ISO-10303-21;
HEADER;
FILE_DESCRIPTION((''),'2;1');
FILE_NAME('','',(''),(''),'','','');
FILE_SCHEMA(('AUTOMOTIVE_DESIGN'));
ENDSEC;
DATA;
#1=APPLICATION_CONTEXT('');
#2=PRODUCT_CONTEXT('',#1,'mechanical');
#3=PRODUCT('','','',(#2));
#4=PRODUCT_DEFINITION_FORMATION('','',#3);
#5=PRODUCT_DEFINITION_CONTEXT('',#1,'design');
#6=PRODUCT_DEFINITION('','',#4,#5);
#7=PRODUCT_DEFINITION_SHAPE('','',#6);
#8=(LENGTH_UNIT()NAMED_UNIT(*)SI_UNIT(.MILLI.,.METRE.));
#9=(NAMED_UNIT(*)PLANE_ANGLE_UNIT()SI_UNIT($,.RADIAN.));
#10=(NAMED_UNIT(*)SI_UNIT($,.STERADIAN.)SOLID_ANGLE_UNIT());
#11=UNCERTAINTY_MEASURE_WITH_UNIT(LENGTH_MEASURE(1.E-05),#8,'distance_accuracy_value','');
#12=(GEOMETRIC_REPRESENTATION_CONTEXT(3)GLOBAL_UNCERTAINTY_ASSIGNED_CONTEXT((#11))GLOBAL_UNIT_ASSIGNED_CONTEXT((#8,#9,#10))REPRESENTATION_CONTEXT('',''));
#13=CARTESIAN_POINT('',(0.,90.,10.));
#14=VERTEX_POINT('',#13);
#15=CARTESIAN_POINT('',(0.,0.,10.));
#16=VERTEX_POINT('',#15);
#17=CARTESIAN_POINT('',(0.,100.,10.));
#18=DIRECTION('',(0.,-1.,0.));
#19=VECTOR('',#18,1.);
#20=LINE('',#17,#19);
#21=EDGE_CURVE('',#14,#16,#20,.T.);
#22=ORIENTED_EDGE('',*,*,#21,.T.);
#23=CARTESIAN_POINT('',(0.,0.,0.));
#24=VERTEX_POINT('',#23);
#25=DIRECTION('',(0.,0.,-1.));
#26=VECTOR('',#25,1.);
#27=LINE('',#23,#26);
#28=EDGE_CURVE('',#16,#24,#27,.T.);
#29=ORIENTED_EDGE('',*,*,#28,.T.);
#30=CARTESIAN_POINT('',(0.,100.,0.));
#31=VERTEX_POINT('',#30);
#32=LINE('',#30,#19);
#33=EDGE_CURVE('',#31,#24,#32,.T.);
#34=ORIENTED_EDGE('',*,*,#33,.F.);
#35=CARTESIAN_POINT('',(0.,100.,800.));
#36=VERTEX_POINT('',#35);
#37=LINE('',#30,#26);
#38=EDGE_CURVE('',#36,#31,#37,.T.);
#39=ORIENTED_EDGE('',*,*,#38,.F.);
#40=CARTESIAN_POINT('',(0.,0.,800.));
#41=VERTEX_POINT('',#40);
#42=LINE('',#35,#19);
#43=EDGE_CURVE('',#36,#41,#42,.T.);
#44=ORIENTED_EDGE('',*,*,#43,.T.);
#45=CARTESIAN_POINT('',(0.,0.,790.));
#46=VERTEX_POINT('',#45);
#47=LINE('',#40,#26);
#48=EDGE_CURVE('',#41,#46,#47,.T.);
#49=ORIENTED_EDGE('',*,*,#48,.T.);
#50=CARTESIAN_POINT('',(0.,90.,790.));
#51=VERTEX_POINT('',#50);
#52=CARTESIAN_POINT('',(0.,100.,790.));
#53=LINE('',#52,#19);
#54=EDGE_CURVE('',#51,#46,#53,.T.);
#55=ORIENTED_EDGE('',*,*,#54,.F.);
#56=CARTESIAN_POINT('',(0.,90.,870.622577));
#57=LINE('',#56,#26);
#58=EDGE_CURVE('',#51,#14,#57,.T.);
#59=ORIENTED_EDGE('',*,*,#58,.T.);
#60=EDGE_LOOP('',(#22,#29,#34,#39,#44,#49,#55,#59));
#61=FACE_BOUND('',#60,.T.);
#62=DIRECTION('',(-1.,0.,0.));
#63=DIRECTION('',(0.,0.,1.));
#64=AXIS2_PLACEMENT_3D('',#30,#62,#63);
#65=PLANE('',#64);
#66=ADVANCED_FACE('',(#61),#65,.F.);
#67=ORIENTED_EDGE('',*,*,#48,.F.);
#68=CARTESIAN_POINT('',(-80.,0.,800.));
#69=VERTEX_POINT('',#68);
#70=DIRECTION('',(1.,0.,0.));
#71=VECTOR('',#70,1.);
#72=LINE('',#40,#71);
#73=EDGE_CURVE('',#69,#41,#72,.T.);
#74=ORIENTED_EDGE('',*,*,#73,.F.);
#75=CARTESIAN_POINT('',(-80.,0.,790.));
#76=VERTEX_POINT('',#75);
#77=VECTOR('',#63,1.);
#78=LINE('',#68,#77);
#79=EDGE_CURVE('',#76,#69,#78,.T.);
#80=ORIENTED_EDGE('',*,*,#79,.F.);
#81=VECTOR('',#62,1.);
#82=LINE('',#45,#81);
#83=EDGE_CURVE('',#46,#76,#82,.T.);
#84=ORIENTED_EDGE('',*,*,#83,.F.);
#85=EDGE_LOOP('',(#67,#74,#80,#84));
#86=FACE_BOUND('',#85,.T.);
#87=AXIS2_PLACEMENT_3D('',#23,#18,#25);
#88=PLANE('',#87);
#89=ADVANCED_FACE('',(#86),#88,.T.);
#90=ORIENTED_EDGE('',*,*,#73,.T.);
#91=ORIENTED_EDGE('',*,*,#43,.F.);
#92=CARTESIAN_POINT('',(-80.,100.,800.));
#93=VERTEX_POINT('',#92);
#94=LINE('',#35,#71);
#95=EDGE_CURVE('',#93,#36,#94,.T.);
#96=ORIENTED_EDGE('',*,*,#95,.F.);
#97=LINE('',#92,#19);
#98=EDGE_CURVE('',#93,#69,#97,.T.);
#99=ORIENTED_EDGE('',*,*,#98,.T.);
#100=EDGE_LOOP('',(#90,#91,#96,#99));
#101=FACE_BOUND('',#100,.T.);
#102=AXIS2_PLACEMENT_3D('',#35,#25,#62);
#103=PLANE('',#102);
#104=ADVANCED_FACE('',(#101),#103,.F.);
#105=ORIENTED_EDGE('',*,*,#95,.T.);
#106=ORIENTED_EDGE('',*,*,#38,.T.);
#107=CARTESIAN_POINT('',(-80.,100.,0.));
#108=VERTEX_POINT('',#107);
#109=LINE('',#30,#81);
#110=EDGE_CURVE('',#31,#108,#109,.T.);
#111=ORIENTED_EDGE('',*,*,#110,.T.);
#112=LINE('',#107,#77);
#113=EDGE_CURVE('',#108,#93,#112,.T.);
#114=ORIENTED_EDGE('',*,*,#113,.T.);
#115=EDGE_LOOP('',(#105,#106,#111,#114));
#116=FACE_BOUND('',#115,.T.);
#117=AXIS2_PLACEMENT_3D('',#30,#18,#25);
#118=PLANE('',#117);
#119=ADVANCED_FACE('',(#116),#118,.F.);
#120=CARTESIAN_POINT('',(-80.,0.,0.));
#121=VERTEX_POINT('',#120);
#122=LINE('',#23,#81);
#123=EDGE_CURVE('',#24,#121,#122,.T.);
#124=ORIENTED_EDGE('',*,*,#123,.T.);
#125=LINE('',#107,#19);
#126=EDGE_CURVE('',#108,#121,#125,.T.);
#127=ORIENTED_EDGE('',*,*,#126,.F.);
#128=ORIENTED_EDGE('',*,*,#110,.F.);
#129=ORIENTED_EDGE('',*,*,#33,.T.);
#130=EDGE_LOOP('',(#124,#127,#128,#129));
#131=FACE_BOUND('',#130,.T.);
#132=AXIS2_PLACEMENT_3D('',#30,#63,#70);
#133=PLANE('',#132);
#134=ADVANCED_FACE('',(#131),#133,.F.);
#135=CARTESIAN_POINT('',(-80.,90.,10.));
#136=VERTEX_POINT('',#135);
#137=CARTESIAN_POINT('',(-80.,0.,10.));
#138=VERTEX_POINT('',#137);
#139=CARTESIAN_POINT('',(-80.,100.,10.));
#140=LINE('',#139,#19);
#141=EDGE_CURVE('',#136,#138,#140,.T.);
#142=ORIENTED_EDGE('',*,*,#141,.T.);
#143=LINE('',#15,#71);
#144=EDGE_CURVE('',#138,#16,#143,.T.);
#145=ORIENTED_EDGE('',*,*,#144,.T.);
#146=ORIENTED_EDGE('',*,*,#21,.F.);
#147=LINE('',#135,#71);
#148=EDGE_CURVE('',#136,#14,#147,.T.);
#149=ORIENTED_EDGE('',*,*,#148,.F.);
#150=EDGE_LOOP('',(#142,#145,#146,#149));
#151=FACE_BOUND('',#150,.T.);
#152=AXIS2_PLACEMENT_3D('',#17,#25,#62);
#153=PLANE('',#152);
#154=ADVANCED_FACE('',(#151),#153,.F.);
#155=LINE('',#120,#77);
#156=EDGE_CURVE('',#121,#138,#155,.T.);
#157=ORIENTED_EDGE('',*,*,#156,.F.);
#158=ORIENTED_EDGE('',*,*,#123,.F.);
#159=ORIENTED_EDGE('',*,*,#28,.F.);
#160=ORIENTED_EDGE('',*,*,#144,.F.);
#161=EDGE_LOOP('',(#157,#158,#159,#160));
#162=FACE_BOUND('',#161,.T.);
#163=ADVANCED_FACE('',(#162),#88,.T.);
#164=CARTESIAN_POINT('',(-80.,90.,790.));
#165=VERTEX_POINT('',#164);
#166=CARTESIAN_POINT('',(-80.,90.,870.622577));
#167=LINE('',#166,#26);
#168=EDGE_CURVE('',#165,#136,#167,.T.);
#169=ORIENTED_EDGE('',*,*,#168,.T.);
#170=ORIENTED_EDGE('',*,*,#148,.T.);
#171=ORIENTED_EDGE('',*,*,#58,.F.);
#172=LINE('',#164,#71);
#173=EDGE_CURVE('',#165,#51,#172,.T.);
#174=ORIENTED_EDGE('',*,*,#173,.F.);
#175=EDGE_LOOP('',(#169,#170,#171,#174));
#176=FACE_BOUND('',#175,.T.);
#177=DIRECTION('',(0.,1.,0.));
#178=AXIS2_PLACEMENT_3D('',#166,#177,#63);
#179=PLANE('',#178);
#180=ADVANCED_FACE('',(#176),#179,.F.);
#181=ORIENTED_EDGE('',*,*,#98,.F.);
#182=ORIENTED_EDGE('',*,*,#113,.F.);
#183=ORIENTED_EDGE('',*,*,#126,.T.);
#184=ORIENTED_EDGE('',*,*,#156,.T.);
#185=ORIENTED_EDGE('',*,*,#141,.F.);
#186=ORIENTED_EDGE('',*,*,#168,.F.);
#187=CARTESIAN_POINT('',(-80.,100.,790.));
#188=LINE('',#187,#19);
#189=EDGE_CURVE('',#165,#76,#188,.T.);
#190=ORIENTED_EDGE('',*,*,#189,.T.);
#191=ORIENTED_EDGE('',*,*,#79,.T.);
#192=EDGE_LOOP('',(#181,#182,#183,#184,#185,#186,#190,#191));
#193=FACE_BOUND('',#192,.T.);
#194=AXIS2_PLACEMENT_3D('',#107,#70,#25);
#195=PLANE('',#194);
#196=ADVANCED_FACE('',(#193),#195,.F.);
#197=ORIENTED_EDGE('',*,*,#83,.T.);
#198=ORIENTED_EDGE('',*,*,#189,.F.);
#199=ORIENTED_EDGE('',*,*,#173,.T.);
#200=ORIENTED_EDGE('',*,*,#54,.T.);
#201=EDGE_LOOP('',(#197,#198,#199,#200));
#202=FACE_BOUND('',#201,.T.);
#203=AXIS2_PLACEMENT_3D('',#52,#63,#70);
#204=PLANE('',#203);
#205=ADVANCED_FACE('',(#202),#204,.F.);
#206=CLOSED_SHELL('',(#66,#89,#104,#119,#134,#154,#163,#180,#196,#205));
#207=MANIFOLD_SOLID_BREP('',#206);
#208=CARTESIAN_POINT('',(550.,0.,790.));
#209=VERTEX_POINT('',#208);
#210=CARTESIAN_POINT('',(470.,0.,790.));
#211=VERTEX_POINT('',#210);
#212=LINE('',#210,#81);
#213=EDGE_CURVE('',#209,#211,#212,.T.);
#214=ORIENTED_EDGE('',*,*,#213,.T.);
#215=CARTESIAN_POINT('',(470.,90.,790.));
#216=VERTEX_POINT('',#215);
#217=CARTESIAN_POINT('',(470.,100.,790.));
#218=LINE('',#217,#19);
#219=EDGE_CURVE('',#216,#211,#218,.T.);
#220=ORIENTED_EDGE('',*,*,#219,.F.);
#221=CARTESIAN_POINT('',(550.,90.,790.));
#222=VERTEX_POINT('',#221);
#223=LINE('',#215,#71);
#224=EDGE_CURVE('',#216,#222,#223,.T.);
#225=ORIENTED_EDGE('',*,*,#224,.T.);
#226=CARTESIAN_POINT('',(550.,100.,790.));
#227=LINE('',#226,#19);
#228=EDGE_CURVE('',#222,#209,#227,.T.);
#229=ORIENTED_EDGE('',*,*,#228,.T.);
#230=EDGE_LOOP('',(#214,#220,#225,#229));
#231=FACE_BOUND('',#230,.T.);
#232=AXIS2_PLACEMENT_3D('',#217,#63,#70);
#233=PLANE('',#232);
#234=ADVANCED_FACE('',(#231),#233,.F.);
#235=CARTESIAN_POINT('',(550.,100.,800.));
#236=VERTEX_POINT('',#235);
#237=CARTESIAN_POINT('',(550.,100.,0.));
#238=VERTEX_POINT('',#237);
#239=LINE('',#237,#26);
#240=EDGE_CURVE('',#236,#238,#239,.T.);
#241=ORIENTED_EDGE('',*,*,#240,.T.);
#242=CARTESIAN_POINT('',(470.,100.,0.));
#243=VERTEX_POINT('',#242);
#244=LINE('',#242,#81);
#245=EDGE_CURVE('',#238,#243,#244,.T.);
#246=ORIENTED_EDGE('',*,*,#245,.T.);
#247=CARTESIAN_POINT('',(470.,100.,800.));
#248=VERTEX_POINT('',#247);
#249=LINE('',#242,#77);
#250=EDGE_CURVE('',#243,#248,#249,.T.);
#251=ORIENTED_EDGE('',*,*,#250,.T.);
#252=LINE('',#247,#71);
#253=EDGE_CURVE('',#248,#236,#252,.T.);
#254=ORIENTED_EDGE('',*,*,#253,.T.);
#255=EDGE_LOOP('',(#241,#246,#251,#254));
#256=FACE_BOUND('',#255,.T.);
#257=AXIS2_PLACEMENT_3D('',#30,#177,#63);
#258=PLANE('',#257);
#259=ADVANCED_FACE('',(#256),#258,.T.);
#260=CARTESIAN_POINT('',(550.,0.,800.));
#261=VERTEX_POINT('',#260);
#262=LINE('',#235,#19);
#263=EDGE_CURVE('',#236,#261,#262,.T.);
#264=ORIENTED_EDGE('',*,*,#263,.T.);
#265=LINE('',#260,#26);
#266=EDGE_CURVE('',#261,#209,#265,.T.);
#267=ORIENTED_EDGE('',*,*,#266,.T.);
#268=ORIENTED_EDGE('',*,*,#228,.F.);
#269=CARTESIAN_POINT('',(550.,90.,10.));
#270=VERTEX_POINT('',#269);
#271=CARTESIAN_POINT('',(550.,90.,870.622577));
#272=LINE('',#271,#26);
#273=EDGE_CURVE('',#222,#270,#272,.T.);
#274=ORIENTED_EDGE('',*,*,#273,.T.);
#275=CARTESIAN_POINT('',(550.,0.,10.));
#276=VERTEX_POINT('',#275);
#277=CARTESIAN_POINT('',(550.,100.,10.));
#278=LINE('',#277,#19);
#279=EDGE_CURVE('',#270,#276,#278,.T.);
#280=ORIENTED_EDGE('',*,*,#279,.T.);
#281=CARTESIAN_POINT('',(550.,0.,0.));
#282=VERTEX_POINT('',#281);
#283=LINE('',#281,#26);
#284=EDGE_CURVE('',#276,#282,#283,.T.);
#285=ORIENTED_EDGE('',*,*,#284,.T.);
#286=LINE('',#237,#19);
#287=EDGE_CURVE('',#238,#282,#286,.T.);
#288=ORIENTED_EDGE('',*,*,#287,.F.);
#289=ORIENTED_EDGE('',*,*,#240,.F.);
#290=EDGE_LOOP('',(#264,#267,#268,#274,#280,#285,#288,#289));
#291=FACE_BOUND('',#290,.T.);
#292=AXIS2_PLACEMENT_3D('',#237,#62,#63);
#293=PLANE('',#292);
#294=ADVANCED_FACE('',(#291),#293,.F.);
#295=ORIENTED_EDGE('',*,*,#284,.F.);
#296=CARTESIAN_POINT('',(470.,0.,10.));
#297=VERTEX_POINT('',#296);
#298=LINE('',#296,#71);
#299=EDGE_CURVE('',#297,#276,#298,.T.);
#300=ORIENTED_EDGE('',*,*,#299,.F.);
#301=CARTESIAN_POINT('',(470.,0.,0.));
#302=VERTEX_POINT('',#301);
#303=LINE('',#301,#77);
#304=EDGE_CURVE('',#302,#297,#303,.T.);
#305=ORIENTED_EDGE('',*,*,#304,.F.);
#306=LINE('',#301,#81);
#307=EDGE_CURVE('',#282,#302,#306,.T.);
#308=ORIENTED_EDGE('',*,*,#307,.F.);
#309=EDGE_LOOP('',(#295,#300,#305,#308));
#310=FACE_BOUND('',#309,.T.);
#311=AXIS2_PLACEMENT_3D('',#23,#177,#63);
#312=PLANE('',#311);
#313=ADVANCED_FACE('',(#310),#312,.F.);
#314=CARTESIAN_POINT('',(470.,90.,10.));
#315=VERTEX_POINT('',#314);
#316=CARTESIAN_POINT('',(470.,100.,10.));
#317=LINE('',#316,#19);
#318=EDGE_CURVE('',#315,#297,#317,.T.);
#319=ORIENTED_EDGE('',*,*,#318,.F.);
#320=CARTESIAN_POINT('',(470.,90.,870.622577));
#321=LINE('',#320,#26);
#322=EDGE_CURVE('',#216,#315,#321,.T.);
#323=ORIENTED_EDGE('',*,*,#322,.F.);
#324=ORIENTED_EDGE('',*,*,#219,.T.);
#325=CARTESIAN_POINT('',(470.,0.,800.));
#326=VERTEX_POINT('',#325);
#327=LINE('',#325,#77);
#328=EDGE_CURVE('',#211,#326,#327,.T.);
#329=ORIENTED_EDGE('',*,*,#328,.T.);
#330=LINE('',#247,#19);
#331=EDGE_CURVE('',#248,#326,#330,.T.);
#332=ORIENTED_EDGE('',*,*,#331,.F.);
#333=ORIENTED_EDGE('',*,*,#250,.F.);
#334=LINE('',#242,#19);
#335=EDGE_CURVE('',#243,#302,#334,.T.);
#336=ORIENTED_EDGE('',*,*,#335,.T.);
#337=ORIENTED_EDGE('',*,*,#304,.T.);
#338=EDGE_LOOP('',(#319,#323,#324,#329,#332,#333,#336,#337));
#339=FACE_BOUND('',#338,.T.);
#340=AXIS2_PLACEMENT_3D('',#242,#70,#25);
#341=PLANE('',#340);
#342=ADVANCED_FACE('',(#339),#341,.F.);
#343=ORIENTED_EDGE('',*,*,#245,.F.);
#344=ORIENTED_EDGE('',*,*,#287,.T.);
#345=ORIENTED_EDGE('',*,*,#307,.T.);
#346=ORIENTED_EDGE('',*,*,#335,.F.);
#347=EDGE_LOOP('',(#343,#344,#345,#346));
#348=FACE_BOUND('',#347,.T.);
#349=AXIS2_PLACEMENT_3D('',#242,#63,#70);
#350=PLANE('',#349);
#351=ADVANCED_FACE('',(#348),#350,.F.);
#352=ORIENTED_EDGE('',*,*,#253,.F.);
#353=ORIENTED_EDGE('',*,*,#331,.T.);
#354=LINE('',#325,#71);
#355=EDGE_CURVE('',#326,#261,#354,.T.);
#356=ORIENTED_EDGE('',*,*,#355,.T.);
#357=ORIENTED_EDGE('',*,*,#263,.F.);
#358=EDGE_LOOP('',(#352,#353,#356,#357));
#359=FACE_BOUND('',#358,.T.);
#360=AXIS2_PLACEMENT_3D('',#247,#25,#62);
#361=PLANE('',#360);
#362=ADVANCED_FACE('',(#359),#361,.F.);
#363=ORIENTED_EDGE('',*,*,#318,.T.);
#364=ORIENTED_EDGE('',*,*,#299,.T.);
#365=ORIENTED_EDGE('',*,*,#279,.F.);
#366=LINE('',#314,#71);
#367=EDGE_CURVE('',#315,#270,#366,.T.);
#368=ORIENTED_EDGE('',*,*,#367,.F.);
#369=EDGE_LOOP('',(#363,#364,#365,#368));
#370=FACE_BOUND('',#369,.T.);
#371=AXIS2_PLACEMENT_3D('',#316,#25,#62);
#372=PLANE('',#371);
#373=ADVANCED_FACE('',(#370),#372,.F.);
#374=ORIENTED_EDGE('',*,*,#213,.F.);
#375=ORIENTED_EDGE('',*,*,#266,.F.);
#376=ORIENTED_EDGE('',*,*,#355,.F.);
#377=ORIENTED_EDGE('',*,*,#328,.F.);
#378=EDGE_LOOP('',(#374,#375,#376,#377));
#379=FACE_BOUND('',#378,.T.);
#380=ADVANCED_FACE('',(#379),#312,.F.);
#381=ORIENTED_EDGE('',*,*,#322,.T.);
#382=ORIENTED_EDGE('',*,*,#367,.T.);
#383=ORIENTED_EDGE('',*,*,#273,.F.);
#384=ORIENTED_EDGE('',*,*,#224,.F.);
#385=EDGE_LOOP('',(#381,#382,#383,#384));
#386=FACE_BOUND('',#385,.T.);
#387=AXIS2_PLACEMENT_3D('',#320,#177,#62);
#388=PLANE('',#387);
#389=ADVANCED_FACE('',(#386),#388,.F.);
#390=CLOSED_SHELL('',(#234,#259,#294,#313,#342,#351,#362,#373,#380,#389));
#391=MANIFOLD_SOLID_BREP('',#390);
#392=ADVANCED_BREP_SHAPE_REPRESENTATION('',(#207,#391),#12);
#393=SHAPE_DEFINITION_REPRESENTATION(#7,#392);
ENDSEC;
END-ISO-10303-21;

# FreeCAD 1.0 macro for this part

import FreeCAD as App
import Part
import Sketcher

V = App.Vector
Q = App.Units.Quantity


def add_polygon(sketch, points):
    """Adds a closed chain of lines whose ends are joined by coincident constraints."""
    first, n = sketch.GeometryCount, len(points)
    for a, b in zip(points, points[1:] + points[:1]):
        sketch.addGeometry(Part.LineSegment(App.Vector(*a, 0), App.Vector(*b, 0)), False)
    for i in range(n):
        sketch.addConstraint(Sketcher.Constraint("Coincident", first + i, 2, first + (i + 1) % n, 1))

doc = App.newDocument("Part")
body = doc.addObject("PartDesign::Body", "Body")

# Sketch on XZ plane
sketch1 = body.newObject("Sketcher::SketchObject", "Sketch")
sketch1.AttachmentSupport = (doc.getObject("XZ_Plane"), [""])
sketch1.MapMode = "FlatFace"
add_polygon(sketch1, [(-80, 0), (-80, 10), (0, 10), (0, 0)])  # lines 0-3
sketch1.addConstraint([
    Sketcher.Constraint("Vertical", 0),
    Sketcher.Constraint("Horizontal", 1),
    Sketcher.Constraint("Vertical", 2),
    Sketcher.Constraint("Horizontal", 3),
    Sketcher.Constraint("Coincident", 2, 2, -1, 1),
    Sketcher.Constraint("DistanceX", 1, 1, 1, 2, Q("80 mm")),
    Sketcher.Constraint("DistanceY", 0, 1, 0, 2, Q("10 mm")),
])
pad1 = body.newObject("PartDesign::Pad", "Pad")
pad1.Profile = sketch1
pad1.Length = 100
pad1.Reversed = True
body2 = doc.addObject("PartDesign::Body", "Body001")

# Sketch on XZ plane
sketch2 = body2.newObject("Sketcher::SketchObject", "Sketch001")
sketch2.AttachmentSupport = (doc.getObject("XZ_Plane001"), [""])
sketch2.MapMode = "FlatFace"
add_polygon(sketch2, [(470, 0), (470, 10), (550, 10), (550, 0)])  # lines 0-3
sketch2.addConstraint([
    Sketcher.Constraint("Vertical", 0),
    Sketcher.Constraint("Horizontal", 1),
    Sketcher.Constraint("Vertical", 2),
    Sketcher.Constraint("Horizontal", 3),
    Sketcher.Constraint("PointOnObject", 2, 2, -1),
    Sketcher.Constraint("DistanceX", 1, 1, 1, 2, Q("80 mm")),
    Sketcher.Constraint("DistanceY", 0, 1, 0, 2, Q("10 mm")),
    Sketcher.Constraint("DistanceX", -1, 1, 0, 2, Q("470 mm")),
])
pad2 = body2.newObject("PartDesign::Pad", "Pad001")
pad2.Profile = sketch2
pad2.Length = 100
pad2.Reversed = True
body3 = doc.addObject("PartDesign::Body", "Body002")

# Sketch on XZ plane
sketch3 = body3.newObject("Sketcher::SketchObject", "Sketch002")
sketch3.AttachmentSupport = (doc.getObject("XZ_Plane002"), [""])
sketch3.MapMode = "FlatFace"
add_polygon(sketch3, [(470, 790), (470, 800), (550, 800), (550, 790)])  # lines 0-3
sketch3.addConstraint([
    Sketcher.Constraint("Vertical", 0),
    Sketcher.Constraint("Horizontal", 1),
    Sketcher.Constraint("Vertical", 2),
    Sketcher.Constraint("Horizontal", 3),
    Sketcher.Constraint("DistanceX", 1, 1, 1, 2, Q("80 mm")),
    Sketcher.Constraint("DistanceY", 0, 1, 0, 2, Q("10 mm")),
    Sketcher.Constraint("DistanceX", -1, 1, 0, 2, Q("470 mm")),
    Sketcher.Constraint("DistanceY", -1, 1, 0, 2, Q("800 mm")),
])
pad3 = body3.newObject("PartDesign::Pad", "Pad002")
pad3.Profile = sketch3
pad3.Length = 100
pad3.Reversed = True
body4 = doc.addObject("PartDesign::Body", "Body003")

# Sketch on XZ plane
sketch4 = body4.newObject("Sketcher::SketchObject", "Sketch003")
sketch4.AttachmentSupport = (doc.getObject("XZ_Plane003"), [""])
sketch4.MapMode = "FlatFace"
add_polygon(sketch4, [(-80, 790), (-80, 800), (0, 800), (0, 790)])  # lines 0-3
sketch4.addConstraint([
    Sketcher.Constraint("Vertical", 0),
    Sketcher.Constraint("Horizontal", 1),
    Sketcher.Constraint("Vertical", 2),
    Sketcher.Constraint("Horizontal", 3),
    Sketcher.Constraint("PointOnObject", 1, 2, -2),
    Sketcher.Constraint("DistanceX", 1, 1, 1, 2, Q("80 mm")),
    Sketcher.Constraint("DistanceY", 0, 1, 0, 2, Q("10 mm")),
    Sketcher.Constraint("DistanceY", -1, 1, 0, 2, Q("800 mm")),
])
pad4 = body4.newObject("PartDesign::Pad", "Pad003")
pad4.Profile = sketch4
pad4.Length = 100
pad4.Reversed = True
body.AllowCompound = True
doc.recompute()

boolean = body.newObject("PartDesign::Boolean", "Boolean")
boolean.Type = "Fuse"
boolean.addObjects([body2])
doc.recompute()

boolean2 = body.newObject("PartDesign::Boolean", "Boolean001")
boolean2.Type = "Fuse"
boolean2.addObjects([body3])
doc.recompute()

boolean3 = body.newObject("PartDesign::Boolean", "Boolean002")
boolean3.Type = "Fuse"
boolean3.addObjects([body4])

# Sketch on XY plane
sketch5 = body.newObject("Sketcher::SketchObject", "Sketch004")
sketch5.AttachmentSupport = (doc.getObject("XY_Plane"), [""])
sketch5.MapMode = "FlatFace"
sketch5.AttachmentOffset = App.Placement(V(0, 0, 10), App.Rotation())
add_polygon(sketch5, [(-80, 100), (-80, 90), (0, 90), (0, 100)])  # lines 0-3
add_polygon(sketch5, [(470, 100), (470, 90), (550, 90), (550, 100)])  # lines 4-7
sketch5.addConstraint([
    Sketcher.Constraint("Vertical", 0),
    Sketcher.Constraint("Horizontal", 1),
    Sketcher.Constraint("Vertical", 2),
    Sketcher.Constraint("Horizontal", 3),
    Sketcher.Constraint("Vertical", 4),
    Sketcher.Constraint("Horizontal", 5),
    Sketcher.Constraint("Vertical", 6),
    Sketcher.Constraint("Horizontal", 7),
    Sketcher.Constraint("PointOnObject", 1, 2, -2),
    Sketcher.Constraint("Horizontal", 1, 2, 4, 2),
    Sketcher.Constraint("Horizontal", 3, 2, 6, 2),
    Sketcher.Constraint("Equal", 3, 5),
    Sketcher.Constraint("DistanceX", 1, 1, 1, 2, Q("80 mm")),
    Sketcher.Constraint("DistanceY", 0, 2, 0, 1, Q("10 mm")),
    Sketcher.Constraint("DistanceY", -1, 1, 0, 2, Q("90 mm")),
    Sketcher.Constraint("DistanceX", -1, 1, 4, 2, Q("470 mm")),
])
pad5 = body.newObject("PartDesign::Pad", "Pad004")
pad5.Profile = sketch5
pad5.Length = 780

doc.recompute()
